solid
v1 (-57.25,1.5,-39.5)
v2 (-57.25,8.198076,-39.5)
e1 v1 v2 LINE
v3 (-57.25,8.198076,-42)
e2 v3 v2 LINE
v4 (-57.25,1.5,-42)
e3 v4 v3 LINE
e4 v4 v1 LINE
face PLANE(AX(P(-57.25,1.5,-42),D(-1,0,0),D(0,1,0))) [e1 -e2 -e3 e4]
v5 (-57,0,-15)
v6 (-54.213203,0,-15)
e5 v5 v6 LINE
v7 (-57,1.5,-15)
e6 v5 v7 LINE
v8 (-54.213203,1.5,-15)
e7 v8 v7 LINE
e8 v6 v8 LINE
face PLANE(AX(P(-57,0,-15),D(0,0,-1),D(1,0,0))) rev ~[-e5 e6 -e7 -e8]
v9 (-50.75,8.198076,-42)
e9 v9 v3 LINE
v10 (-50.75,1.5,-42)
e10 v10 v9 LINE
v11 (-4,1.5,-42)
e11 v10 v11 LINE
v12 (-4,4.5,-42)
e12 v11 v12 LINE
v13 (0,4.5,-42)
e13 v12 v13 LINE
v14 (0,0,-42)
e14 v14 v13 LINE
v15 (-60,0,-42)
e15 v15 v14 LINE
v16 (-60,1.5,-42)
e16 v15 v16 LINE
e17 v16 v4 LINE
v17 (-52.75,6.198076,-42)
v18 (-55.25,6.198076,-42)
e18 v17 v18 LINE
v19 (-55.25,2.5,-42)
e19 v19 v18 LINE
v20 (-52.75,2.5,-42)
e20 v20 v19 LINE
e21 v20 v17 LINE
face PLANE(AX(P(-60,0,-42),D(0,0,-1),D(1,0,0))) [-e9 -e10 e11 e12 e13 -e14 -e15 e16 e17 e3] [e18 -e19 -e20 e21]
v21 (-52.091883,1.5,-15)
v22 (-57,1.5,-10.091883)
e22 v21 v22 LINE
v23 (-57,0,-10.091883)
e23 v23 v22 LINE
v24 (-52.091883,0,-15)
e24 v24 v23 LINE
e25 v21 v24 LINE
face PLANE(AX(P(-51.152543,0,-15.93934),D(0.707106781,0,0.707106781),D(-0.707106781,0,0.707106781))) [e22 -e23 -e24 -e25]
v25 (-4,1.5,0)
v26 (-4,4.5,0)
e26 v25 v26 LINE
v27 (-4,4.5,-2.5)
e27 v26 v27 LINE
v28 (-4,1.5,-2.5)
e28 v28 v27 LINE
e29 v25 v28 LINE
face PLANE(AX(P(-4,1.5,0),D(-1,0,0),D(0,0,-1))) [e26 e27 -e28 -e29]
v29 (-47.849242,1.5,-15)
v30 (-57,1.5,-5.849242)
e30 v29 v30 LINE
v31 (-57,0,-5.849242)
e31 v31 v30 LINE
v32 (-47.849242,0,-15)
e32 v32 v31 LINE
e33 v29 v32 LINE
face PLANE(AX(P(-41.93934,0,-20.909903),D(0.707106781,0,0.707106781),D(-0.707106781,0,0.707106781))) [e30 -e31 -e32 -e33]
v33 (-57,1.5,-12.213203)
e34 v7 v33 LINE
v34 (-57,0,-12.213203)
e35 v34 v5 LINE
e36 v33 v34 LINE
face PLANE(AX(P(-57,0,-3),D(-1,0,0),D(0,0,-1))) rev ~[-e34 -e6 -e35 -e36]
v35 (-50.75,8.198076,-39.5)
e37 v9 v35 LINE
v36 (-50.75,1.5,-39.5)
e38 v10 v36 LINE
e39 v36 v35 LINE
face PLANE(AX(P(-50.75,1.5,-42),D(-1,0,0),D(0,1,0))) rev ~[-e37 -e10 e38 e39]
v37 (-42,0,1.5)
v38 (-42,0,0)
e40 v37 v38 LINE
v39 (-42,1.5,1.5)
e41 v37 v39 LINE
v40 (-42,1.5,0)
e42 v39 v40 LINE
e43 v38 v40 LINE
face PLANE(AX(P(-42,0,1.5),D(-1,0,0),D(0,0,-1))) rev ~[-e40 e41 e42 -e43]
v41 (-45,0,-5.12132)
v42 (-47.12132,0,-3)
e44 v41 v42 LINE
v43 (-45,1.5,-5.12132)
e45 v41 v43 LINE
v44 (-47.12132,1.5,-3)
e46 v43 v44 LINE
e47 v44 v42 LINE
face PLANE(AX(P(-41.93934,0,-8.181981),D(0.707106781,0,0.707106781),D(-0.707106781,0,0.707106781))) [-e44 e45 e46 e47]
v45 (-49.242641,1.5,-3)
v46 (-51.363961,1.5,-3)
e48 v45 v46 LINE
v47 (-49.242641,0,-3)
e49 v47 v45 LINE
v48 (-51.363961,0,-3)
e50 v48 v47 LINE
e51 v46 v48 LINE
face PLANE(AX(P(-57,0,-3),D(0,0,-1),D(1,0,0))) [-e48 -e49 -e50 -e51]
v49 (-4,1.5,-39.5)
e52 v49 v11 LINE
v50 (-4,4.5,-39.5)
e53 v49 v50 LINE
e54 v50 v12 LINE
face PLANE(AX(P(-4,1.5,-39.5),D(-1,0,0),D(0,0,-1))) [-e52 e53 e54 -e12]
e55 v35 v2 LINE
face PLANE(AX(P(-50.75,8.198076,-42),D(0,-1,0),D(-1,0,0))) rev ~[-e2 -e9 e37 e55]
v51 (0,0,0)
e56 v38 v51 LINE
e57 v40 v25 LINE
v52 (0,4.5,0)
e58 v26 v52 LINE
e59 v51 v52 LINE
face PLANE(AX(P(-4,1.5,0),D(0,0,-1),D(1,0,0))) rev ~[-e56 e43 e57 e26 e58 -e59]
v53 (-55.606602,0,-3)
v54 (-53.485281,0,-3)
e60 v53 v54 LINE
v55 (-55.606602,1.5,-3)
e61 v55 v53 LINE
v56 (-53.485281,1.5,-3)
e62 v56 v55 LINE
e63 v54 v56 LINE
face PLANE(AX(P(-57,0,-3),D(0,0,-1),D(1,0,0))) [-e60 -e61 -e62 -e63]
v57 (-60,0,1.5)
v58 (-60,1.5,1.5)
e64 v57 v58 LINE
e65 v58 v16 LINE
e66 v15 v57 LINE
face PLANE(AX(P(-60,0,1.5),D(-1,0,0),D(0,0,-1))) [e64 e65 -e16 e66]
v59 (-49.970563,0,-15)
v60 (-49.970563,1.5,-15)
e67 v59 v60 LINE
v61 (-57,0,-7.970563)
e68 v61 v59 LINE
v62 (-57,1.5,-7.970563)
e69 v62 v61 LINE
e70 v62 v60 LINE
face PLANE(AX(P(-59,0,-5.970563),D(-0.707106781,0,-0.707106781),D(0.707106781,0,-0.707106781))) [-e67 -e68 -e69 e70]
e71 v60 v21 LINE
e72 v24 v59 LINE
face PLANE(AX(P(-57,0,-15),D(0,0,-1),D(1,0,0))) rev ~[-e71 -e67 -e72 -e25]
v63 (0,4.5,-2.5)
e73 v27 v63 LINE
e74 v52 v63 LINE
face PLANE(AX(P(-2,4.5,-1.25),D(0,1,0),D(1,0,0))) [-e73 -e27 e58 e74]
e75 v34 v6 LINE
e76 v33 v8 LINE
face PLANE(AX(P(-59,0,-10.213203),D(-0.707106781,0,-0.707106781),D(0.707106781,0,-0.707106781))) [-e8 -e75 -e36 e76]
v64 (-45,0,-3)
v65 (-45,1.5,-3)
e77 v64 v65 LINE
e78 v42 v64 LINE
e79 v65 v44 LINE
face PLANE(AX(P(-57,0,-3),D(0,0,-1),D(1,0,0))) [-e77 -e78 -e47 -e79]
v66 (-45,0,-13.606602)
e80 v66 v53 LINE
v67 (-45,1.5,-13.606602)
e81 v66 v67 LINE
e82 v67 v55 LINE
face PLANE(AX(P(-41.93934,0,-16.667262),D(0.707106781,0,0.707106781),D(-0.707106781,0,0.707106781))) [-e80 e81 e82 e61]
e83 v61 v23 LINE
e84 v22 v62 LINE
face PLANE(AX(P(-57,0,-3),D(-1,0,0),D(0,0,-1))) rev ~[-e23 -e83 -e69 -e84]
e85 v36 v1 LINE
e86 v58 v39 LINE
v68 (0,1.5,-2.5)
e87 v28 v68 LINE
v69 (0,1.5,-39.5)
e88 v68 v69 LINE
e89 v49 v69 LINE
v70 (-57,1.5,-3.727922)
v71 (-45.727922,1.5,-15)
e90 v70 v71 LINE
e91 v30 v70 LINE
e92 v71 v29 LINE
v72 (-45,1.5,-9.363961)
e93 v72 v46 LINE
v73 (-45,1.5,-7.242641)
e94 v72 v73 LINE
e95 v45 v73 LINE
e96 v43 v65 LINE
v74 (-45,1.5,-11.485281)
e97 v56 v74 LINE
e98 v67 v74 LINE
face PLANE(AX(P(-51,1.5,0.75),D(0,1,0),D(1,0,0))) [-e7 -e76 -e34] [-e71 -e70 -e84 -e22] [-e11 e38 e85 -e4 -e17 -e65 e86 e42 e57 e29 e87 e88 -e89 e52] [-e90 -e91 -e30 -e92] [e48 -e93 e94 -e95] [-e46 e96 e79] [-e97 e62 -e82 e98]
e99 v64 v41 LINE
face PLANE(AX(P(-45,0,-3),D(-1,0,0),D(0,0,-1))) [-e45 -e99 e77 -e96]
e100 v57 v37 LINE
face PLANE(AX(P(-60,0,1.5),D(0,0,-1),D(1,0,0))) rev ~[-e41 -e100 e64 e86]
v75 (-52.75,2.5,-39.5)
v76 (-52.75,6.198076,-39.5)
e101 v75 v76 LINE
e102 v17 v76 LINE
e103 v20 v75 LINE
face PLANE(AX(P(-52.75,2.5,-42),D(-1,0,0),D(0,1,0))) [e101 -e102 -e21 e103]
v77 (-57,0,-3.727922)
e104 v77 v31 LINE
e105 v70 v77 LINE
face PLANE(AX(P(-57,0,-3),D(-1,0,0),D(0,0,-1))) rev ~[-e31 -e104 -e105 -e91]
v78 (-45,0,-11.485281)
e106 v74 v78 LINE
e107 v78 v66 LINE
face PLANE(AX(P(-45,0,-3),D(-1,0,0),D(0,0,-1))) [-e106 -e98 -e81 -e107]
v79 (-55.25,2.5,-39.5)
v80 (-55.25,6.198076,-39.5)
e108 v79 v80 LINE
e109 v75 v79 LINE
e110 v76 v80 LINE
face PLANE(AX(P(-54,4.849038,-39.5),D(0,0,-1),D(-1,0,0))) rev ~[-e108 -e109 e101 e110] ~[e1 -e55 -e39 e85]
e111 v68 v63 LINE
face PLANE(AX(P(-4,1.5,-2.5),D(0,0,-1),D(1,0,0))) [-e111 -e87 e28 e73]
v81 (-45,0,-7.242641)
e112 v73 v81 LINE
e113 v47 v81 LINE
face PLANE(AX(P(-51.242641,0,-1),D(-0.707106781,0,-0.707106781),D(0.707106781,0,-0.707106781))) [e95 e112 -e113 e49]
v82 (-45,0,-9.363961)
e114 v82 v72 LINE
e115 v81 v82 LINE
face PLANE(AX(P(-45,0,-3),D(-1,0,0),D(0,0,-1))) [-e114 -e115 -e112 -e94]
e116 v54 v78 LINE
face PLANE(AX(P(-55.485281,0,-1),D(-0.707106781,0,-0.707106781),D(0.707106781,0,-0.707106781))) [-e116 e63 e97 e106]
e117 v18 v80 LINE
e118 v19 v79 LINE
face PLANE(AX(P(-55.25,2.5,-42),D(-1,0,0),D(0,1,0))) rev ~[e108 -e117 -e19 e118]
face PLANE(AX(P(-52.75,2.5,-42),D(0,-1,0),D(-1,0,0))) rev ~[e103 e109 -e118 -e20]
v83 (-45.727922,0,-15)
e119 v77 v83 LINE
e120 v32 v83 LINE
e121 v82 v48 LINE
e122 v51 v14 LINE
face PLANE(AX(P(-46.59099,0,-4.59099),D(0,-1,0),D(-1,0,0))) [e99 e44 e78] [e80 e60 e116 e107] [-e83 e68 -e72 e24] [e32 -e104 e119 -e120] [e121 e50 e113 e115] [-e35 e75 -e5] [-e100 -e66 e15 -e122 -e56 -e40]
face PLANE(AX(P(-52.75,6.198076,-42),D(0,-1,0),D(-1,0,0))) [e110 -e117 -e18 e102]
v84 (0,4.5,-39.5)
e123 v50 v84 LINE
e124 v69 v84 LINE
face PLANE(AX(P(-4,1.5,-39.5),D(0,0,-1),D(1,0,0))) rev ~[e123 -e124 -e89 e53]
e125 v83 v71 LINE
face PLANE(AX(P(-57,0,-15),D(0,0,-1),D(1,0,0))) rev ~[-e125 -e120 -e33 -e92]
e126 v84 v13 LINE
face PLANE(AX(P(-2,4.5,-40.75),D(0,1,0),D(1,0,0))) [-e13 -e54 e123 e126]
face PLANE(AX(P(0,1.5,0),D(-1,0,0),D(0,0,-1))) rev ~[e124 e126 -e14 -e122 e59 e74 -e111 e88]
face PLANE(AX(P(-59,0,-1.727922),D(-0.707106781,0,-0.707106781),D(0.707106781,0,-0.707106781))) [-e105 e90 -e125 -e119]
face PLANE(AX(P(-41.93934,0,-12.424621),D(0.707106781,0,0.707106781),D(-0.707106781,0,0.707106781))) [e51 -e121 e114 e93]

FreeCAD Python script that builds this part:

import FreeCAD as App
import Part
import Sketcher
from FreeCAD import Vector
Q = App.Units.Quantity


def add_polygon(sketch, points):
    """Adds a closed chain of lines whose ends are joined by coincident constraints."""
    first, n = sketch.GeometryCount, len(points)
    for a, b in zip(points, points[1:] + points[:1]):
        sketch.addGeometry(Part.LineSegment(App.Vector(*a, 0), App.Vector(*b, 0)), False)
    for i in range(n):
        sketch.addConstraint(Sketcher.Constraint("Coincident", first + i, 2, first + (i + 1) % n, 1))

doc = App.newDocument("Part")
body = doc.addObject("PartDesign::Body", "Body")

sketch1 = body.newObject("Sketcher::SketchObject", "Sketch")
sketch1.AttachmentSupport = (doc.getObject("XZ_Plane"), [""])
sketch1.MapMode = "FlatFace"
add_polygon(sketch1, [(-60, -42), (-60, 0), (0, 0), (0, -42)])
sketch1.addConstraint([
    Sketcher.Constraint("Vertical", 0),
    Sketcher.Constraint("Horizontal", 1),
    Sketcher.Constraint("Vertical", 2),
    Sketcher.Constraint("Horizontal", 3),
    Sketcher.Constraint("Coincident", 1, 2, -1, 1),
    Sketcher.Constraint("DistanceX", 1, 1, 1, 2, 60.0),
    Sketcher.Constraint("DistanceY", 0, 1, 0, 2, 42.0),
])
pad1 = body.newObject("PartDesign::Pad", "Pad")
pad1.Profile = sketch1
pad1.Length = 1.5
pad1.Reversed = True

sketch2 = body.newObject("Sketcher::SketchObject", "Sketch001")
sketch2.AttachmentSupport = (doc.getObject("XZ_Plane"), [""])
sketch2.MapMode = "FlatFace"
add_polygon(sketch2, [(-60, 0), (-60, 1.5), (-42, 1.5), (-42, 0)])
sketch2.addConstraint([
    Sketcher.Constraint("Vertical", 0),
    Sketcher.Constraint("Horizontal", 1),
    Sketcher.Constraint("Vertical", 2),
    Sketcher.Constraint("Horizontal", 3),
    Sketcher.Constraint("PointOnObject", 2, 2, -1),
    Sketcher.Constraint("DistanceX", 1, 1, 1, 2, 18.0),
    Sketcher.Constraint("DistanceY", 0, 1, 0, 2, 1.5),
    Sketcher.Constraint("DistanceX", 0, 2, -1, 1, 60.0),
])
pad2 = body.newObject("PartDesign::Pad", "Pad001")
pad2.Profile = sketch2
pad2.Length = 1.5
pad2.Reversed = True

sketch3 = body.newObject("Sketcher::SketchObject", "Sketch002")
sketch3.AttachmentSupport = (doc.getObject("XZ_Plane"), [""])
sketch3.MapMode = "FlatFace"
add_polygon(sketch3, [(-57, -15), (-57, -3), (-45, -3), (-45, -15)])
sketch3.addConstraint([
    Sketcher.Constraint("Vertical", 0),
    Sketcher.Constraint("Horizontal", 1),
    Sketcher.Constraint("Vertical", 2),
    Sketcher.Constraint("Horizontal", 3),
    Sketcher.Constraint("Equal", 3, 0),
    Sketcher.Constraint("DistanceX", 1, 1, 1, 2, 12.0),
    Sketcher.Constraint("DistanceX", 0, 2, -1, 1, 57.0),
    Sketcher.Constraint("DistanceY", 0, 2, -1, 1, 3.0),
])
pocket1 = body.newObject("PartDesign::Pocket", "Pocket")
pocket1.Profile = sketch3
pocket1.Type = "ThroughAll"

sketch4 = body.newObject("Sketcher::SketchObject", "Sketch003")
sketch4.AttachmentSupport = (doc.getObject("XZ_Plane"), [""])
sketch4.MapMode = "FlatFace"
add_polygon(sketch4, [(-43, -9.2), (-51.2, -1), (-50.2, 0.1), (-41.9, -8.2)])
add_polygon(sketch4, [(-43, -13.5), (-55.5, -1), (-54.4, 0.1), (-41.9, -12.4)])
add_polygon(sketch4, [(-43, -17.7), (-59, -1.7), (-57.9, -0.7), (-41.9, -16.7)])
add_polygon(sketch4, [(-43, -22), (-59, -6), (-57.9, -4.9), (-41.9, -20.9)])
add_polygon(sketch4, [(-52.2, -17), (-59, -10.2), (-57.9, -9.2), (-51.2, -15.9)])
sketch4.addConstraint([
    Sketcher.Constraint("Perpendicular", 0, 1),
    Sketcher.Constraint("Perpendicular", 1, 2),
    Sketcher.Constraint("Perpendicular", 2, 3),
    Sketcher.Constraint("Perpendicular", 3, 4),
    Sketcher.Constraint("Perpendicular", 4, 5),
    Sketcher.Constraint("Perpendicular", 5, 6),
    Sketcher.Constraint("Perpendicular", 6, 7),
    Sketcher.Constraint("Perpendicular", 7, 8),
    Sketcher.Constraint("Perpendicular", 8, 9),
    Sketcher.Constraint("Perpendicular", 9, 10),
    Sketcher.Constraint("Perpendicular", 10, 11),
    Sketcher.Constraint("Perpendicular", 11, 12),
    Sketcher.Constraint("Perpendicular", 12, 13),
    Sketcher.Constraint("Perpendicular", 13, 14),
    Sketcher.Constraint("Perpendicular", 14, 15),
    Sketcher.Constraint("Perpendicular", 15, 16),
    Sketcher.Constraint("Perpendicular", 16, 17),
    Sketcher.Constraint("Perpendicular", 17, 18),
    Sketcher.Constraint("Perpendicular", 18, 19),
    Sketcher.Constraint("Horizontal", 0, 2, 4, 2),
    Sketcher.Constraint("Horizontal", 1, 2, 5, 2),
    Sketcher.Constraint("Vertical", 2, 2, 6, 2),
    Sketcher.Constraint("Vertical", 6, 2, 10, 2),
    Sketcher.Constraint("Vertical", 7, 2, 11, 2),
    Sketcher.Constraint("Vertical", 8, 2, 12, 2),
    Sketcher.Constraint("Vertical", 9, 2, 13, 2),
    Sketcher.Constraint("Vertical", 10, 2, 14, 2),
    Sketcher.Constraint("Vertical", 12, 2, 16, 2),
    Sketcher.Constraint("Vertical", 13, 2, 17, 2),
    Sketcher.Constraint("Angle", 0, Q("135 deg")),
    Sketcher.Constraint("DistanceY", 0, 2, -1, 1, 1.0),
    Sketcher.Constraint("DistanceX", 3, 2, -1, 1, 43.0),
    Sketcher.Constraint("DistanceX", 8, 2, -1, 1, 59.0),
    Sketcher.Constraint("DistanceY", 19, 2, -1, 1, 17.0),
    Sketcher.Constraint("Distance", 1, 1.5),
    Sketcher.Constraint("DistanceX", 0, 2, 2, 2, 9.303301),
    Sketcher.Constraint("DistanceX", 4, 2, 1, 2, 5.303301),
    Sketcher.Constraint("DistanceY", 11, 2, 6, 2, 5.303301),
    Sketcher.Constraint("DistanceY", 12, 2, 9, 2, 5.303301),
    Sketcher.Constraint("DistanceY", 16, 2, 13, 2, 5.303301),
])
pad3 = body.newObject("PartDesign::Pad", "Pad002")
pad3.Profile = sketch4
pad3.Length = 1.5
pad3.Reversed = True

sketch5 = body.newObject("Sketcher::SketchObject", "Sketch004")
sketch5.AttachmentSupport = (doc.getObject("XY_Plane"), [""])
sketch5.MapMode = "FlatFace"
sketch5.AttachmentOffset = App.Placement(Vector(0, 0, -42), App.Rotation())
add_polygon(sketch5, [(-50.8, 8.2), (-50.8, 1.5), (-57.2, 1.5), (-57.2, 8.2)])
add_polygon(sketch5, [(-55.2, 2.5), (-52.8, 2.5), (-52.8, 6.2), (-55.2, 6.2)])
sketch5.addConstraint([
    Sketcher.Constraint("Vertical", 0),
    Sketcher.Constraint("Horizontal", 1),
    Sketcher.Constraint("Vertical", 2),
    Sketcher.Constraint("Horizontal", 3),
    Sketcher.Constraint("Horizontal", 4),
    Sketcher.Constraint("Vertical", 5),
    Sketcher.Constraint("Horizontal", 6),
    Sketcher.Constraint("Vertical", 7),
    Sketcher.Constraint("DistanceX", 1, 2, 1, 1, 6.5),
    Sketcher.Constraint("DistanceX", 4, 1, 4, 2, 2.5),
    Sketcher.Constraint("DistanceX", 4, 2, 0, 2, 2.0),
    Sketcher.Constraint("DistanceY", 0, 2, 4, 2, 1.0),
    Sketcher.Constraint("DistanceY", 5, 2, 3, 2, 2.0),
    Sketcher.Constraint("DistanceY", -1, 1, 0, 2, 1.5),
    Sketcher.Constraint("DistanceX", 0, 2, -1, 1, 50.75),
    Sketcher.Constraint("DistanceY", 0, 2, 0, 1, 6.698076),
])
pad4 = body.newObject("PartDesign::Pad", "Pad003")
pad4.Profile = sketch5
pad4.Length = 2.5

sketch6 = body.newObject("Sketcher::SketchObject", "Sketch005")
sketch6.AttachmentSupport = (doc.getObject("XZ_Plane"), [""])
sketch6.MapMode = "FlatFace"
sketch6.AttachmentOffset = App.Placement(Vector(0, 0, -1.5), App.Rotation())
add_polygon(sketch6, [(-4, -2.5), (-4, 0), (0, 0), (0, -2.5)])
add_polygon(sketch6, [(-4, -42), (-4, -39.5), (0, -39.5), (0, -42)])
sketch6.addConstraint([
    Sketcher.Constraint("Vertical", 0),
    Sketcher.Constraint("Horizontal", 1),
    Sketcher.Constraint("Vertical", 2),
    Sketcher.Constraint("Horizontal", 3),
    Sketcher.Constraint("Vertical", 4),
    Sketcher.Constraint("Horizontal", 5),
    Sketcher.Constraint("Vertical", 6),
    Sketcher.Constraint("Horizontal", 7),
    Sketcher.Constraint("Coincident", 1, 2, -1, 1),
    Sketcher.Constraint("PointOnObject", 5, 2, -2),
    Sketcher.Constraint("Vertical", 3, 2, 4, 2),
    Sketcher.Constraint("Equal", 2, 4),
    Sketcher.Constraint("DistanceX", 1, 1, 1, 2, 4.0),
    Sketcher.Constraint("DistanceY", 0, 1, 0, 2, 2.5),
    Sketcher.Constraint("DistanceY", 6, 2, -1, 1, 42.0),
])
pad5 = body.newObject("PartDesign::Pad", "Pad004")
pad5.Profile = sketch6
pad5.Length = 3
pad5.Reversed = True

doc.recompute()
